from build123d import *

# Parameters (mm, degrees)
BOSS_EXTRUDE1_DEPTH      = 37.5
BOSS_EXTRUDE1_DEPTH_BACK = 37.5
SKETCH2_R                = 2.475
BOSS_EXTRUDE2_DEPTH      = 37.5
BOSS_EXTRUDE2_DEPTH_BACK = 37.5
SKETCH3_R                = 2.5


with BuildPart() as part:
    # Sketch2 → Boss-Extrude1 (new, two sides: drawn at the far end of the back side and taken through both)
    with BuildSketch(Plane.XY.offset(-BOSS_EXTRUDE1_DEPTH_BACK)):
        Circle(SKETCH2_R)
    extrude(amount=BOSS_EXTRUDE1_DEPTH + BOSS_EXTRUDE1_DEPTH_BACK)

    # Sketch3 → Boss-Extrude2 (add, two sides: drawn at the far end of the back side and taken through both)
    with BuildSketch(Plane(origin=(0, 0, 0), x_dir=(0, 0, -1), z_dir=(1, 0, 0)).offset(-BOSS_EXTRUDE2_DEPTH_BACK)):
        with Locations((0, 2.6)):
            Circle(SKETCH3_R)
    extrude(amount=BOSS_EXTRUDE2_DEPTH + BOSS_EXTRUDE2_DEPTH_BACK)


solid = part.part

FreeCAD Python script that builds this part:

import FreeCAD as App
import Part
import Sketcher
Q = App.Units.Quantity

doc = App.newDocument("Part")
body = doc.addObject("PartDesign::Body", "Body")

# Sketch on XY plane
sketch1 = body.newObject("Sketcher::SketchObject", "Sketch")
sketch1.AttachmentSupport = (doc.getObject("XY_Plane"), [""])
sketch1.MapMode = "FlatFace"
sketch1.addGeometry(Part.Circle(App.Vector(0, 0, 0), App.Vector(0, 0, 1), 2.5), False)
sketch1.addConstraint([
    Sketcher.Constraint("Coincident", 0, 3, -1, 1),
    Sketcher.Constraint("Diameter", 0, Q("4.95 mm")),
])
pad1 = body.newObject("PartDesign::Pad", "Pad")
pad1.Profile = sketch1
pad1.Type = "TwoLengths"
pad1.Length = 37.5
pad1.Length2 = 37.5

# Sketch on YZ plane
sketch2 = body.newObject("Sketcher::SketchObject", "Sketch001")
sketch2.AttachmentSupport = (doc.getObject("YZ_Plane"), [""])
sketch2.MapMode = "FlatFace"
sketch2.addGeometry(Part.Circle(App.Vector(2.6, 0, 0), App.Vector(0, 0, 1), 2.5), False)
sketch2.addConstraint([
    Sketcher.Constraint("PointOnObject", 0, 3, -1),
    Sketcher.Constraint("Diameter", 0, Q("5 mm")),
    Sketcher.Constraint("DistanceX", -1, 1, 0, 3, Q("2.6 mm")),
])
pad2 = body.newObject("PartDesign::Pad", "Pad001")
pad2.Profile = sketch2
pad2.Type = "TwoLengths"
pad2.Length = 37.5
pad2.Length2 = 37.5

doc.recompute()
